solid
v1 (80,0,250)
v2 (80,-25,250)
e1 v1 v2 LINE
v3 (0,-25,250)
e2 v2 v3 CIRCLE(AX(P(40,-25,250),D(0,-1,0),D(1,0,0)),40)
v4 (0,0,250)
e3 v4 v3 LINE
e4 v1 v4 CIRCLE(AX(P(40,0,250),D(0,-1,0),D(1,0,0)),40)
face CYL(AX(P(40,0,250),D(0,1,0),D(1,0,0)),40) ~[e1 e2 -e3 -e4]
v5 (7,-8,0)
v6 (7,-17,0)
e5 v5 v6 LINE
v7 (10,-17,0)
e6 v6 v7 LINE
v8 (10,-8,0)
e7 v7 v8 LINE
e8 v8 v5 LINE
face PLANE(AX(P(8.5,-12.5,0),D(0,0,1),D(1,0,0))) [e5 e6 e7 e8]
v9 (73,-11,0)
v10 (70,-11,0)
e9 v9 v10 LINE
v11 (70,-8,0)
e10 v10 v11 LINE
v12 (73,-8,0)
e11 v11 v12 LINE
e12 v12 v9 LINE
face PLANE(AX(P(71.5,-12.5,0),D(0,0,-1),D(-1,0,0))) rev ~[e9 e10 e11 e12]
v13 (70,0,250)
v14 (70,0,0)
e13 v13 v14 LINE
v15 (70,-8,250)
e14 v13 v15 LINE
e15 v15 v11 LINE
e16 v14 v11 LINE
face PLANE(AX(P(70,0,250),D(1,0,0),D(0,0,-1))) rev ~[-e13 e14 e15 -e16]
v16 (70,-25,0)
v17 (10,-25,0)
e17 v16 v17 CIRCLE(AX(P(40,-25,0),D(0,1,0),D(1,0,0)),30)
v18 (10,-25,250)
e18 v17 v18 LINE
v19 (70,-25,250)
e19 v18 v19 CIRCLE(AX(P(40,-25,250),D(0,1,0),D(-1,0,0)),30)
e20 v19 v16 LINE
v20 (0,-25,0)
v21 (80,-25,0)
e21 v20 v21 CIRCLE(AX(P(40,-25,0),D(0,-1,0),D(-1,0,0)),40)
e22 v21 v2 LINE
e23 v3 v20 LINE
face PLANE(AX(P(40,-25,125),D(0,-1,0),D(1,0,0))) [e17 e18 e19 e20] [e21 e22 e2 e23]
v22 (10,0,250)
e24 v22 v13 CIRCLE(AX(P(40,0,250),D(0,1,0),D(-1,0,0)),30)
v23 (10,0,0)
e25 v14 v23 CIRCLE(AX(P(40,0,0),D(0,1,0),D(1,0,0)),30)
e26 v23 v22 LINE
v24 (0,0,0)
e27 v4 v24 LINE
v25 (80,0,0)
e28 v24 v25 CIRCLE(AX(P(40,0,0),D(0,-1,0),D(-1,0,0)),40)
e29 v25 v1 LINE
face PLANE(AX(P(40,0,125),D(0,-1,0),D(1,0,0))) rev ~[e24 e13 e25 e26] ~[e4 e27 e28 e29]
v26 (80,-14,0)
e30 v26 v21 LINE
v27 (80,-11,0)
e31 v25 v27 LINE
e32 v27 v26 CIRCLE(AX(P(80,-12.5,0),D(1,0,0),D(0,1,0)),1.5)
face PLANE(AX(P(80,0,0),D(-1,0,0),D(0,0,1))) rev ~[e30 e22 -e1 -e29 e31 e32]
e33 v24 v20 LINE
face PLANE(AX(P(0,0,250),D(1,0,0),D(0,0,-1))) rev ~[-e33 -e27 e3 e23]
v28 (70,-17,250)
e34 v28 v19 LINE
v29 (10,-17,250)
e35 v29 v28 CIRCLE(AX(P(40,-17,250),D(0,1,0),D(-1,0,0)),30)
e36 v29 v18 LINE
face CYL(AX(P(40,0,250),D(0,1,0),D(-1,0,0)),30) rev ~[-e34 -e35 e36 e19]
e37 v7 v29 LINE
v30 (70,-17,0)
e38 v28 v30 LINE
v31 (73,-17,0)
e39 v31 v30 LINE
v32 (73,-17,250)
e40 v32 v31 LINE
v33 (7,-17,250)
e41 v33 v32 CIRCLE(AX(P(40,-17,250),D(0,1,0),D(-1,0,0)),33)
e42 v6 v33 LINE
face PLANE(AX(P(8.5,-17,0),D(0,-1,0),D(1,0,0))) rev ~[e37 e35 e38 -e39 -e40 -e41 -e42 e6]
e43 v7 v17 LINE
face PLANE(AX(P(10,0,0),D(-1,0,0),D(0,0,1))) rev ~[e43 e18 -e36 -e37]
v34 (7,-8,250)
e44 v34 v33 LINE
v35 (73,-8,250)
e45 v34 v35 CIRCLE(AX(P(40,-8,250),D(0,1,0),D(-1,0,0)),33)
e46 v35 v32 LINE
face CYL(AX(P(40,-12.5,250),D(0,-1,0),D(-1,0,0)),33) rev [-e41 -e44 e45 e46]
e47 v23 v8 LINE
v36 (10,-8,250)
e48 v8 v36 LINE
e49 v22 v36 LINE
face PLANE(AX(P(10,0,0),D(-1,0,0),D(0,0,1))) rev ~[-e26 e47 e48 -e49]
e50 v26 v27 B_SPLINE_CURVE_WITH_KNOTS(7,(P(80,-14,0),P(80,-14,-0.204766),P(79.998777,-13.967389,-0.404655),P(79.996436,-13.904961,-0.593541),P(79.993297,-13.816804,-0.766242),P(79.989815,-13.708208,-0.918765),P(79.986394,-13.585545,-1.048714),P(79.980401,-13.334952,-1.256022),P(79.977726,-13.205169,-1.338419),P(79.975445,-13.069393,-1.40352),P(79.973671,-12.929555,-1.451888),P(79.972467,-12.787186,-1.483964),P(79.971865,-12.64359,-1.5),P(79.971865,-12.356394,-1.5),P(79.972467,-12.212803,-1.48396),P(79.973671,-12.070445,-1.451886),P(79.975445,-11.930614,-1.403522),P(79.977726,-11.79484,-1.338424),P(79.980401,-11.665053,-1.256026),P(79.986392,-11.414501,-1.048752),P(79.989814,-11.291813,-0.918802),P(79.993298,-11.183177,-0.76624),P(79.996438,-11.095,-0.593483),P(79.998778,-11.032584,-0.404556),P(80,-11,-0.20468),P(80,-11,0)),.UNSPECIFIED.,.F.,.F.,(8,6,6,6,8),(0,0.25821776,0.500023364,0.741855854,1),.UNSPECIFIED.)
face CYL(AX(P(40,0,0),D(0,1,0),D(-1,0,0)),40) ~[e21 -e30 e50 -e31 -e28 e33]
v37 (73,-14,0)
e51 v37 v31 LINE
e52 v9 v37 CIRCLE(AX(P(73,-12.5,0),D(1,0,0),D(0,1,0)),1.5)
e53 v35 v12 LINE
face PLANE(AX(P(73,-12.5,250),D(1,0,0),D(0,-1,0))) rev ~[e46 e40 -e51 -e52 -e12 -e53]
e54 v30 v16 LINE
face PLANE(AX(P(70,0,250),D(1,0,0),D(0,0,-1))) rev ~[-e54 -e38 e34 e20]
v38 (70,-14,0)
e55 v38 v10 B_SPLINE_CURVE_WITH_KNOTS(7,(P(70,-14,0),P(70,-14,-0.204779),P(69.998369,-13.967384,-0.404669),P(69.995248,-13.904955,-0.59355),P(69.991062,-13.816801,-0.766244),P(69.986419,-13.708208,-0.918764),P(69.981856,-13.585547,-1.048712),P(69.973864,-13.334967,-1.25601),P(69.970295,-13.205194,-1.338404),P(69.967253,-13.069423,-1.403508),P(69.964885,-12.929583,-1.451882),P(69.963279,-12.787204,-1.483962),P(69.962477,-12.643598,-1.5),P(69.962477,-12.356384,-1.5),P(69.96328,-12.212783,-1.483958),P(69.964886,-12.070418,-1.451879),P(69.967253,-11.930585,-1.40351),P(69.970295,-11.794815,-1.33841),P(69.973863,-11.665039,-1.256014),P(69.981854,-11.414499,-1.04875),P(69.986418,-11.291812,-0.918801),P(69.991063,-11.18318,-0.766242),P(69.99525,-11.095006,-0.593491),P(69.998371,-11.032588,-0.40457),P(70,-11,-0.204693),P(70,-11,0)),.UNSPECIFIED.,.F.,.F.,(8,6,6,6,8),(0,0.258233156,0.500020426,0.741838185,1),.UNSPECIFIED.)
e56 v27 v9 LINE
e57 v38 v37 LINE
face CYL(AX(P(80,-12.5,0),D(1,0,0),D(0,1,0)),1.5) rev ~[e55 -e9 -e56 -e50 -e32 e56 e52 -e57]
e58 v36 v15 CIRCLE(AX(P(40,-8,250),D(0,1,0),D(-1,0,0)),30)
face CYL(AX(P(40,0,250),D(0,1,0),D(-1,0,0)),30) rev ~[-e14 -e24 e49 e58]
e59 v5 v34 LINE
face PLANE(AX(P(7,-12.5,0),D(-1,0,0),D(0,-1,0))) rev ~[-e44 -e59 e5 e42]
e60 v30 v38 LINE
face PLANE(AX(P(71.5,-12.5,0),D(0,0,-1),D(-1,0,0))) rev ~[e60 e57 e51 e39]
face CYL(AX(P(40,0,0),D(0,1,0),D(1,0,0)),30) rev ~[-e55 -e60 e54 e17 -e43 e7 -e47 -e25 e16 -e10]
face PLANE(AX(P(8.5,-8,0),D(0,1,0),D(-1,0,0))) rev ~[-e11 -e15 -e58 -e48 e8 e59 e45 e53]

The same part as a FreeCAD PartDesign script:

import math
import FreeCAD as App
import Part
import Sketcher
from FreeCAD import Vector
Q = App.Units.Quantity


def add_polygon(sketch, points):
    """Adds a closed chain of lines whose ends are joined by coincident constraints."""
    first, n = sketch.GeometryCount, len(points)
    for a, b in zip(points, points[1:] + points[:1]):
        sketch.addGeometry(Part.LineSegment(App.Vector(*a, 0), App.Vector(*b, 0)), False)
    for i in range(n):
        sketch.addConstraint(Sketcher.Constraint("Coincident", first + i, 2, first + (i + 1) % n, 1))

doc = App.newDocument("Part")
params = doc.addObject("Spreadsheet::Sheet", "Params")
for row, (alias, value) in enumerate([
    ("sketch1_radius", "40 mm"),
    ("sketch1_radius2", "30 mm"),
    ("sketch1_height", "250 mm"),
    ("pad1_length", "25 mm"),
    ("sketch2_width", "3 mm"),
    ("sketch2_height", "9 mm"),
    ("sketch3_radius", "30 mm"),
    ("sketch3_height", "250 mm"),
    ("sketch4_diameter", "3 mm"),
    ("pocket1_length", "10.038524 mm"),
], start=1):
    params.set(f"A{row}", alias)
    params.set(f"B{row}", "=" + value)
    params.setAlias(f"B{row}", alias)

body = doc.addObject("PartDesign::Body", "Body")

# Sketch on XZ plane
sketch1 = body.newObject("Sketcher::SketchObject", "Sketch")
sketch1.AttachmentSupport = (doc.getObject("XZ_Plane"), [""])
sketch1.MapMode = "FlatFace"
sketch1.addGeometry([
    Part.LineSegment(Vector(0, 250, 0), Vector(0, 0, 0)),  # 0
    Part.ArcOfCircle(Part.Circle(Vector(40, 0, 0), Vector(0, 0, 1), 40), math.radians(180), math.radians(360)),  # 1
    Part.LineSegment(Vector(80, 0, 0), Vector(80, 250, 0)),  # 2
    Part.ArcOfCircle(Part.Circle(Vector(40, 250, 0), Vector(0, 0, 1), 40), math.radians(0), math.radians(180)),  # 3
    Part.LineSegment(Vector(10, 0, 0), Vector(10, 250, 0)),  # 4
    Part.ArcOfCircle(Part.Circle(Vector(40, 250, 0), Vector(0, 0, 1), 30), math.radians(0), math.radians(180)),  # 5
    Part.LineSegment(Vector(70, 250, 0), Vector(70, 0, 0)),  # 6
    Part.ArcOfCircle(Part.Circle(Vector(40, 0, 0), Vector(0, 0, 1), 30), math.radians(180), math.radians(360)),  # 7
], False)
sketch1.addConstraint([
    Sketcher.Constraint("Tangent", 0, 2, 1, 1),
    Sketcher.Constraint("Tangent", 1, 2, 2, 1),
    Sketcher.Constraint("Tangent", 2, 2, 3, 1),
    Sketcher.Constraint("Tangent", 3, 2, 0, 1),
    Sketcher.Constraint("Tangent", 4, 2, 5, 2),
    Sketcher.Constraint("Tangent", 5, 1, 6, 1),
    Sketcher.Constraint("Tangent", 6, 2, 7, 2),
    Sketcher.Constraint("Tangent", 7, 1, 4, 1),
    Sketcher.Constraint("Vertical", 0),
    Sketcher.Constraint("Vertical", 2),
    Sketcher.Constraint("Vertical", 4),
    Sketcher.Constraint("Vertical", 6),
    Sketcher.Constraint("Coincident", 0, 2, -1, 1),
    Sketcher.Constraint("Coincident", 5, 3, 3, 3),
    Sketcher.Constraint("PointOnObject", 7, 3, -1),
    Sketcher.Constraint("Radius", 1, Q("40 mm")),
    Sketcher.Constraint("Radius", 5, Q("30 mm")),
    Sketcher.Constraint("DistanceY", 0, 2, 0, 1, Q("250 mm")),
])
sketch1.setExpression("Constraints[15]", "Params.sketch1_radius")
sketch1.setExpression("Constraints[16]", "Params.sketch1_radius2")
sketch1.setExpression("Constraints[17]", "Params.sketch1_height")
pad1 = body.newObject("PartDesign::Pad", "Pad")
pad1.Profile = sketch1
pad1.setExpression("Length", "Params.pad1_length")

# Sketch on XY plane
sketch2 = body.newObject("Sketcher::SketchObject", "Sketch001")
sketch2.AttachmentSupport = (doc.getObject("XY_Plane"), [""])
sketch2.MapMode = "FlatFace"
add_polygon(sketch2, [(7, -8), (7, -17), (10, -17), (10, -8)])  # lines 0-3
sketch2.addConstraint([
    Sketcher.Constraint("Vertical", 0),
    Sketcher.Constraint("Horizontal", 1),
    Sketcher.Constraint("Vertical", 2),
    Sketcher.Constraint("Horizontal", 3),
    Sketcher.Constraint("DistanceX", 1, 1, 1, 2, Q("3 mm")),
    Sketcher.Constraint("DistanceY", 0, 2, 0, 1, Q("9 mm")),
    Sketcher.Constraint("DistanceX", -1, 1, 0, 2, Q("7 mm")),
    Sketcher.Constraint("DistanceY", 0, 2, -1, 1, Q("17 mm")),
])
sketch2.setExpression("Constraints[8]", "Params.sketch2_width")
sketch2.setExpression("Constraints[9]", "Params.sketch2_height")

# Sketch on XZ plane
sketch3 = body.newObject("Sketcher::SketchObject", "Sketch002")
sketch3.AttachmentSupport = (doc.getObject("XZ_Plane"), [""])
sketch3.MapMode = "FlatFace"
sketch3.AttachmentOffset = App.Placement(Vector(0, 0, 25), App.Rotation())
sketch3.addGeometry([
    Part.LineSegment(Vector(10, 0, 0), Vector(10, 250, 0)),
    Part.ArcOfCircle(Part.Circle(Vector(40, 250, 0), Vector(0, 0, 1), 30), math.radians(0), math.radians(180)),
    Part.LineSegment(Vector(70, 250, 0), Vector(70, 0, 0)),
], False)
sketch3.addConstraint([
    Sketcher.Constraint("Tangent", 0, 2, 1, 2),
    Sketcher.Constraint("Tangent", 1, 1, 2, 1),
    Sketcher.Constraint("Vertical", 0),
    Sketcher.Constraint("Vertical", 2),
    Sketcher.Constraint("PointOnObject", 0, 1, -1),
    Sketcher.Constraint("PointOnObject", 2, 2, -1),
    Sketcher.Constraint("Radius", 1, Q("30 mm")),
    Sketcher.Constraint("DistanceY", 0, 1, 0, 2, Q("250 mm")),
    Sketcher.Constraint("DistanceX", -1, 1, 1, 3, Q("40 mm")),
])
sketch3.setExpression("Constraints[6]", "Params.sketch3_radius")
sketch3.setExpression("Constraints[7]", "Params.sketch3_height")
doc.recompute()

subtractivepipe = body.newObject("PartDesign::SubtractivePipe", "SubtractivePipe")
subtractivepipe.Profile = sketch2
subtractivepipe.Spine = (sketch3, ["Edge1", "Edge2", "Edge3"])

# Sketch on YZ plane
sketch4 = body.newObject("Sketcher::SketchObject", "Sketch003")
sketch4.AttachmentSupport = (doc.getObject("YZ_Plane"), [""])
sketch4.MapMode = "FlatFace"
sketch4.AttachmentOffset = App.Placement(Vector(0, 0, 80), App.Rotation())
sketch4.addGeometry(Part.Circle(Vector(-12.5, 0, 0), Vector(0, 0, 1), 1.5), False)
sketch4.addConstraint([
    Sketcher.Constraint("PointOnObject", 0, 3, -1),
    Sketcher.Constraint("Diameter", 0, Q("3 mm")),
    Sketcher.Constraint("DistanceX", 0, 3, -1, 1, Q("12.5 mm")),
])
sketch4.setExpression("Constraints[1]", "Params.sketch4_diameter")
pocket1 = body.newObject("PartDesign::Pocket", "Pocket")
pocket1.Profile = sketch4
pocket1.setExpression("Length", "Params.pocket1_length")

doc.recompute()
